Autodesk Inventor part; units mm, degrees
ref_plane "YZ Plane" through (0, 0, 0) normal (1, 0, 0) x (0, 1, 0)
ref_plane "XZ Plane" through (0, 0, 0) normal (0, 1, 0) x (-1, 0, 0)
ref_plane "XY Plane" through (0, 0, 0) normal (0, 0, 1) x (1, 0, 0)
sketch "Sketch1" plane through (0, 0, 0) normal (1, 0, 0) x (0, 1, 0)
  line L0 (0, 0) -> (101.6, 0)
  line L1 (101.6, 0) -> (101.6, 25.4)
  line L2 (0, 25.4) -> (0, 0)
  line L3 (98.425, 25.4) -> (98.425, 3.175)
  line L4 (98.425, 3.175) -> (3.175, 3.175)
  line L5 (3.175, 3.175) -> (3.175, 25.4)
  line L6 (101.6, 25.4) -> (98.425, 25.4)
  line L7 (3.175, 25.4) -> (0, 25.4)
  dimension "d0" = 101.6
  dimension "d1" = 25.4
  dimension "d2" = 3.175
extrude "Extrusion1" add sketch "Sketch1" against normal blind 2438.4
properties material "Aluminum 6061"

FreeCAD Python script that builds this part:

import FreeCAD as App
import Part
import Sketcher

V = App.Vector
Q = App.Units.Quantity


def add_polygon(sketch, points):
    """Adds a closed chain of lines whose ends are joined by coincident constraints."""
    first, n = sketch.GeometryCount, len(points)
    for a, b in zip(points, points[1:] + points[:1]):
        sketch.addGeometry(Part.LineSegment(App.Vector(*a, 0), App.Vector(*b, 0)), False)
    for i in range(n):
        sketch.addConstraint(Sketcher.Constraint("Coincident", first + i, 2, first + (i + 1) % n, 1))

doc = App.newDocument("Part")
body = doc.addObject("PartDesign::Body", "Body")

# Sketch on YZ plane
sketch1 = body.newObject("Sketcher::SketchObject", "Sketch")
sketch1.AttachmentSupport = (doc.getObject("YZ_Plane"), [""])
sketch1.MapMode = "FlatFace"
add_polygon(sketch1, [(0, 25.4), (0, 0), (101.6, 0), (101.6, 25.4), (98.4, 25.4), (98.4, 3.2), (3.2, 3.2), (3.2, 25.4)])  # lines 0-7
sketch1.addConstraint([
    Sketcher.Constraint("Vertical", 0),
    Sketcher.Constraint("Horizontal", 1),
    Sketcher.Constraint("Vertical", 2),
    Sketcher.Constraint("Horizontal", 3),
    Sketcher.Constraint("Vertical", 4),
    Sketcher.Constraint("Horizontal", 5),
    Sketcher.Constraint("Vertical", 6),
    Sketcher.Constraint("Horizontal", 7),
    Sketcher.Constraint("Coincident", 0, 2, -1, 1),
    Sketcher.Constraint("Horizontal", 3, 2, 6, 2),
    Sketcher.Constraint("Equal", 3, 7),
    Sketcher.Constraint("DistanceX", 1, 1, 1, 2, Q("4 in")),
    Sketcher.Constraint("DistanceY", 0, 2, 0, 1, Q("1 in")),
    Sketcher.Constraint("DistanceX", 3, 2, 3, 1, Q("0.125 in")),
    Sketcher.Constraint("DistanceY", -1, 1, 4, 2, Q("0.125 in")),
])
pad1 = body.newObject("PartDesign::Pad", "Pad")
pad1.Profile = sketch1
pad1.Length = Q("96 in")
pad1.Reversed = True

doc.recompute()
